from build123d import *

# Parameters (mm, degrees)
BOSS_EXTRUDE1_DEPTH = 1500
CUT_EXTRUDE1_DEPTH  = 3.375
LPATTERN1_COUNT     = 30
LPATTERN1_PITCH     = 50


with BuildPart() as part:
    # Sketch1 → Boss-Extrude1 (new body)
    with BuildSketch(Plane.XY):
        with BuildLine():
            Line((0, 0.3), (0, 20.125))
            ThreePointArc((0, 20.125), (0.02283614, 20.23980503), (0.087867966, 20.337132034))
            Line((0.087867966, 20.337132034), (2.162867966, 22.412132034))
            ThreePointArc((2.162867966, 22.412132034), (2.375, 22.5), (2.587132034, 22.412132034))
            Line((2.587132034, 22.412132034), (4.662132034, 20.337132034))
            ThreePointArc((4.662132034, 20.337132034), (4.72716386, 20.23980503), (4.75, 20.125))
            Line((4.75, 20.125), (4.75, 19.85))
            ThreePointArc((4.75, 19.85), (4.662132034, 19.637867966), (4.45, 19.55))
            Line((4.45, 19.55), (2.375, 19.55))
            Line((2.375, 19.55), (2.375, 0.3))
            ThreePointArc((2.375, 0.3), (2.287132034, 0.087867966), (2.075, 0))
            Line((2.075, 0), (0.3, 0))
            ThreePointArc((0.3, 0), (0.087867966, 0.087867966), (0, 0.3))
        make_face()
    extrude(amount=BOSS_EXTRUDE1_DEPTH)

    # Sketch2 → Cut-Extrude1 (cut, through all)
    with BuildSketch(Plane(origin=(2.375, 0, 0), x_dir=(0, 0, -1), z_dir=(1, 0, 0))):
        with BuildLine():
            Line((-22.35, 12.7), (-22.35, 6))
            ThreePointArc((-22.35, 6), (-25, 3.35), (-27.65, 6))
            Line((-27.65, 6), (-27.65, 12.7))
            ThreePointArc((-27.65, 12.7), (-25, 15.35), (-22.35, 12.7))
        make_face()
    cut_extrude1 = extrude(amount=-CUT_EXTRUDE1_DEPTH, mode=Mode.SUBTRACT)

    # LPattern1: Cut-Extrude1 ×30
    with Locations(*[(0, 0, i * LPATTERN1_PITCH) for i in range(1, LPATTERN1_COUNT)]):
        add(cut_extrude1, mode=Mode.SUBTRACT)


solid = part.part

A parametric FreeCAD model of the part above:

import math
import FreeCAD as App
import Part
import Sketcher
Q = App.Units.Quantity

doc = App.newDocument("Part")
body = doc.addObject("PartDesign::Body", "Body")

# Sketch on XY plane
sketch1 = body.newObject("Sketcher::SketchObject", "Sketch")
sketch1.AttachmentSupport = (doc.getObject("XY_Plane"), [""])
sketch1.MapMode = "FlatFace"
sketch1.addGeometry(Part.LineSegment(App.Vector(0, 20.12, 0), App.Vector(0, 0.3, 0)), False)
sketch1.addGeometry(Part.ArcOfCircle(Part.Circle(App.Vector(0.3, 0.3, 0), App.Vector(0, 0, 1), 0.3), math.radians(-180), math.radians(-90)), False)
sketch1.addGeometry(Part.LineSegment(App.Vector(0.3, 0, 0), App.Vector(2.08, 0, 0)), False)
sketch1.addGeometry(Part.ArcOfCircle(Part.Circle(App.Vector(2.07, 0.3, 0), App.Vector(0, 0, 1), 0.3), math.radians(-90), math.radians(0)), False)
sketch1.addGeometry(Part.LineSegment(App.Vector(2.38, 0.3, 0), App.Vector(2.38, 19.55, 0)), False)
sketch1.addGeometry(Part.LineSegment(App.Vector(2.38, 19.55, 0), App.Vector(4.45, 19.55, 0)), False)
sketch1.addGeometry(Part.ArcOfCircle(Part.Circle(App.Vector(4.45, 19.85, 0), App.Vector(0, 0, 1), 0.3), math.radians(-90), math.radians(0)), False)
sketch1.addGeometry(Part.LineSegment(App.Vector(4.75, 19.85, 0), App.Vector(4.75, 20.12, 0)), False)
sketch1.addGeometry(Part.ArcOfCircle(Part.Circle(App.Vector(4.45, 20.13, 0), App.Vector(0, 0, 1), 0.3), math.radians(0), math.radians(45)), False)
sketch1.addGeometry(Part.LineSegment(App.Vector(4.66, 20.34, 0), App.Vector(2.59, 22.41, 0)), False)
sketch1.addGeometry(Part.ArcOfCircle(Part.Circle(App.Vector(2.38, 22.2, 0), App.Vector(0, 0, 1), 0.3), math.radians(45), math.radians(135)), False)
sketch1.addGeometry(Part.LineSegment(App.Vector(2.16, 22.41, 0), App.Vector(0.09, 20.34, 0)), False)
sketch1.addGeometry(Part.ArcOfCircle(Part.Circle(App.Vector(0.3, 20.13, 0), App.Vector(0, 0, 1), 0.3), math.radians(135), math.radians(180)), False)
sketch1.addConstraint(Sketcher.Constraint("Tangent", 0, 2, 1, 1))
sketch1.addConstraint(Sketcher.Constraint("Tangent", 1, 2, 2, 1))
sketch1.addConstraint(Sketcher.Constraint("Tangent", 2, 2, 3, 1))
sketch1.addConstraint(Sketcher.Constraint("Tangent", 3, 2, 4, 1))
sketch1.addConstraint(Sketcher.Constraint("Coincident", 4, 2, 5, 1))
sketch1.addConstraint(Sketcher.Constraint("Tangent", 5, 2, 6, 1))
sketch1.addConstraint(Sketcher.Constraint("Tangent", 6, 2, 7, 1))
sketch1.addConstraint(Sketcher.Constraint("Tangent", 7, 2, 8, 1))
sketch1.addConstraint(Sketcher.Constraint("Tangent", 8, 2, 9, 1))
sketch1.addConstraint(Sketcher.Constraint("Tangent", 9, 2, 10, 1))
sketch1.addConstraint(Sketcher.Constraint("Tangent", 10, 2, 11, 1))
sketch1.addConstraint(Sketcher.Constraint("Tangent", 11, 2, 12, 1))
sketch1.addConstraint(Sketcher.Constraint("Tangent", 12, 2, 0, 1))
sketch1.addConstraint(Sketcher.Constraint("Vertical", 0))
sketch1.addConstraint(Sketcher.Constraint("Horizontal", 2))
sketch1.addConstraint(Sketcher.Constraint("Vertical", 4))
sketch1.addConstraint(Sketcher.Constraint("Horizontal", 5))
sketch1.addConstraint(Sketcher.Constraint("Vertical", 7))
sketch1.addConstraint(Sketcher.Constraint("Equal", 1, 3))
sketch1.addConstraint(Sketcher.Constraint("Equal", 3, 6))
sketch1.addConstraint(Sketcher.Constraint("Equal", 6, 8))
sketch1.addConstraint(Sketcher.Constraint("Equal", 8, 10))
sketch1.addConstraint(Sketcher.Constraint("Equal", 10, 12))
sketch1.addConstraint(Sketcher.Constraint("PointOnObject", 0, 2, -2))
sketch1.addConstraint(Sketcher.Constraint("PointOnObject", 1, 2, -1))
sketch1.addConstraint(Sketcher.Constraint("Perpendicular", 9, 11))
sketch1.addConstraint(Sketcher.Constraint("Horizontal", 8, 3, 12, 3))
sketch1.addConstraint(Sketcher.Constraint("Horizontal", 9, 2, 10, 2))
sketch1.addConstraint(Sketcher.Constraint("Vertical", 10, 3, 3, 2))
sketch1.addConstraint(Sketcher.Constraint("Radius", 1, Q("0.3 mm")))
sketch1.addConstraint(Sketcher.Constraint("DistanceY", 4, 1, 4, 2, Q("19.25 mm")))
sketch1.addConstraint(Sketcher.Constraint("DistanceY", -1, 1, 10, 3, Q("22.2 mm")))
sketch1.addConstraint(Sketcher.Constraint("DistanceX", 2, 1, 2, 2, Q("1.775 mm")))
pad1 = body.newObject("PartDesign::Pad", "Pad")
pad1.Profile = sketch1
pad1.Length = 1500

# Sketch on YZ plane
sketch2 = body.newObject("Sketcher::SketchObject", "Sketch001")
sketch2.AttachmentSupport = (doc.getObject("YZ_Plane"), [""])
sketch2.MapMode = "FlatFace"
sketch2.AttachmentOffset = App.Placement(App.Vector(0, 0, 2.375), App.Rotation())
sketch2.addGeometry(Part.LineSegment(App.Vector(6, 22.4, 0), App.Vector(12.7, 22.4, 0)), False)
sketch2.addGeometry(Part.ArcOfCircle(Part.Circle(App.Vector(12.7, 25, 0), App.Vector(0, 0, 1), 2.6), math.radians(-90), math.radians(90)), False)
sketch2.addGeometry(Part.LineSegment(App.Vector(12.7, 27.6, 0), App.Vector(6, 27.6, 0)), False)
sketch2.addGeometry(Part.ArcOfCircle(Part.Circle(App.Vector(6, 25, 0), App.Vector(0, 0, 1), 2.6), math.radians(90), math.radians(270)), False)
sketch2.addConstraint(Sketcher.Constraint("Tangent", 0, 2, 1, 1))
sketch2.addConstraint(Sketcher.Constraint("Tangent", 1, 2, 2, 1))
sketch2.addConstraint(Sketcher.Constraint("Tangent", 2, 2, 3, 1))
sketch2.addConstraint(Sketcher.Constraint("Tangent", 3, 2, 0, 1))
sketch2.addConstraint(Sketcher.Constraint("Horizontal", 0))
sketch2.addConstraint(Sketcher.Constraint("Horizontal", 2))
sketch2.addConstraint(Sketcher.Constraint("Radius", 1, Q("2.65 mm")))
sketch2.addConstraint(Sketcher.Constraint("DistanceX", 0, 1, 0, 2, Q("6.7 mm")))
sketch2.addConstraint(Sketcher.Constraint("DistanceY", -1, 1, 1, 3, Q("25 mm")))
sketch2.addConstraint(Sketcher.Constraint("DistanceX", -1, 1, 3, 3, Q("6 mm")))
pocket1 = body.newObject("PartDesign::Pocket", "Pocket")
pocket1.Profile = sketch2
pocket1.Type = "ThroughAll"
doc.recompute()

linearpattern = body.newObject("PartDesign::LinearPattern", "LinearPattern")
linearpattern.Originals = [pocket1]
linearpattern.Direction = (doc.getObject("Z_Axis"), [""])
linearpattern.Mode = "offset"
linearpattern.Offset = 50
linearpattern.Occurrences = 30
body.Tip = linearpattern

doc.recompute()
